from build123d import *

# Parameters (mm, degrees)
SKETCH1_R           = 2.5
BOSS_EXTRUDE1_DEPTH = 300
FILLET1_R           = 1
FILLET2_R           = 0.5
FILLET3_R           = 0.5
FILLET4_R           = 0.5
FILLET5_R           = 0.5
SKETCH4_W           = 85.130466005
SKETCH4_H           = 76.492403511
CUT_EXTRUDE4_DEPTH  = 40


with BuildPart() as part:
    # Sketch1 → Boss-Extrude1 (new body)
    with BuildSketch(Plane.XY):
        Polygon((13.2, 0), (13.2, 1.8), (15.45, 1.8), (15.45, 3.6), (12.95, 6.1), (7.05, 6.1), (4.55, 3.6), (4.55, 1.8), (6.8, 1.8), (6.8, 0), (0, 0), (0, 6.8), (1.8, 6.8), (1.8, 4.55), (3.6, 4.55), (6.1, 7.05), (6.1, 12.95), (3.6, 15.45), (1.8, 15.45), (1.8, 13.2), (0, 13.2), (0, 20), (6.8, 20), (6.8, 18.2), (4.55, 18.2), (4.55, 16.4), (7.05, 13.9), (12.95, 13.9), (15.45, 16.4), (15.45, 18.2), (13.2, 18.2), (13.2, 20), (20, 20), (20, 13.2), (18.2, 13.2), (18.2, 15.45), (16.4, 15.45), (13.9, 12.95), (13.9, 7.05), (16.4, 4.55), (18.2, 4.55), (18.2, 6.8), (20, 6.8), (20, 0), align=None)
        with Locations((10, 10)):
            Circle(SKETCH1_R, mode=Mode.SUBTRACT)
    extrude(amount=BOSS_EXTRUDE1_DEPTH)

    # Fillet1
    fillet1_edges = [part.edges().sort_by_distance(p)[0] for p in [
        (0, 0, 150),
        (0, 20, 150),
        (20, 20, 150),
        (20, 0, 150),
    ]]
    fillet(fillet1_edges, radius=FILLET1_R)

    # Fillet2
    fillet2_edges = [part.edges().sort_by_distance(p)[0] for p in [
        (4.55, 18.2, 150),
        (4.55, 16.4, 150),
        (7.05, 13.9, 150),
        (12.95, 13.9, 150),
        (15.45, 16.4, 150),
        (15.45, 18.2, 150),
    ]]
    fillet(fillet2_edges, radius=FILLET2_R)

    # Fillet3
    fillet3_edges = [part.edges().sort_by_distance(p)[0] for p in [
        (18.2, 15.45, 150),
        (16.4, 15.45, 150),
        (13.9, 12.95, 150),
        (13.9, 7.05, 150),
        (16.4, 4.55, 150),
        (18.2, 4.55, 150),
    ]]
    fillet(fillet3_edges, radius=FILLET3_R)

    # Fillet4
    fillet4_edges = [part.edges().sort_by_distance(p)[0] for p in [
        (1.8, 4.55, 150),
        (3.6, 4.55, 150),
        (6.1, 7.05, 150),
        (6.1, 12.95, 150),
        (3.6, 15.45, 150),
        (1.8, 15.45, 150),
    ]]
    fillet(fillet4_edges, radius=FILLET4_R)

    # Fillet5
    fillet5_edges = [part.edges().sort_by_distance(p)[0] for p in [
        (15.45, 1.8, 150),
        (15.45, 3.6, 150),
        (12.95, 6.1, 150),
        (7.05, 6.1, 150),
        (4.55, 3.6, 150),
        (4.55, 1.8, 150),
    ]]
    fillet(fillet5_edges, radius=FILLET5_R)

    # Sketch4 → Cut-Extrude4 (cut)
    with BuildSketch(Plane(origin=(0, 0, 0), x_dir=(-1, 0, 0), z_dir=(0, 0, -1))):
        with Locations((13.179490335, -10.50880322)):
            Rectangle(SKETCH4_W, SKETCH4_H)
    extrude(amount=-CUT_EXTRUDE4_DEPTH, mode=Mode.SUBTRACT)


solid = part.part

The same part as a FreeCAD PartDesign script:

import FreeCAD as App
import Part
import Sketcher

V = App.Vector


def edges_at(feature, points):
    """Names of the edges that pass closest to the given points."""
    edges = feature.Shape.Edges
    near = lambda p: min(range(len(edges)), key=lambda i: edges[i].distToShape(Part.Vertex(*p))[0])
    return sorted({f"Edge{near(p) + 1}" for p in points})


def add_polygon(sketch, points):
    """Adds a closed chain of lines whose ends are joined by coincident constraints."""
    first, n = sketch.GeometryCount, len(points)
    for a, b in zip(points, points[1:] + points[:1]):
        sketch.addGeometry(Part.LineSegment(App.Vector(*a, 0), App.Vector(*b, 0)), False)
    for i in range(n):
        sketch.addConstraint(Sketcher.Constraint("Coincident", first + i, 2, first + (i + 1) % n, 1))

doc = App.newDocument("Part")
body = doc.addObject("PartDesign::Body", "Body")

sketch1 = body.newObject("Sketcher::SketchObject", "Sketch")
sketch1.AttachmentSupport = (doc.getObject("XY_Plane"), [""])
sketch1.MapMode = "FlatFace"
add_polygon(sketch1, [(13.2, 1.8), (13.2, 0), (20, 0), (20, 6.8), (18.2, 6.8), (18.2, 4.5), (16.4, 4.5), (13.9, 7), (13.9, 12.9), (16.4, 15.4), (18.2, 15.4), (18.2, 13.2), (20, 13.2), (20, 20), (13.2, 20), (13.2, 18.2), (15.4, 18.2), (15.4, 16.4), (12.9, 13.9), (7, 13.9), (4.5, 16.4), (4.5, 18.2), (6.8, 18.2), (6.8, 20), (0, 20), (0, 13.2), (1.8, 13.2), (1.8, 15.4), (3.6, 15.4), (6.1, 12.9), (6.1, 7), (3.6, 4.5), (1.8, 4.5), (1.8, 6.8), (0, 6.8), (0, 0), (6.8, 0), (6.8, 1.8), (4.5, 1.8), (4.5, 3.6), (7, 6.1), (12.9, 6.1), (15.4, 3.6), (15.4, 1.8)])
sketch1.addGeometry(Part.Circle(V(10, 10, 0), V(0, 0, 1), 2.5), False)
sketch1.addConstraint(Sketcher.Constraint("Vertical", 0))
sketch1.addConstraint(Sketcher.Constraint("Horizontal", 1))
sketch1.addConstraint(Sketcher.Constraint("Vertical", 2))
sketch1.addConstraint(Sketcher.Constraint("Horizontal", 3))
sketch1.addConstraint(Sketcher.Constraint("Vertical", 4))
sketch1.addConstraint(Sketcher.Constraint("Horizontal", 5))
sketch1.addConstraint(Sketcher.Constraint("Vertical", 7))
sketch1.addConstraint(Sketcher.Constraint("Horizontal", 9))
sketch1.addConstraint(Sketcher.Constraint("Vertical", 10))
sketch1.addConstraint(Sketcher.Constraint("Horizontal", 11))
sketch1.addConstraint(Sketcher.Constraint("Vertical", 12))
sketch1.addConstraint(Sketcher.Constraint("Horizontal", 13))
sketch1.addConstraint(Sketcher.Constraint("Vertical", 14))
sketch1.addConstraint(Sketcher.Constraint("Horizontal", 15))
sketch1.addConstraint(Sketcher.Constraint("Vertical", 16))
sketch1.addConstraint(Sketcher.Constraint("Horizontal", 18))
sketch1.addConstraint(Sketcher.Constraint("Vertical", 20))
sketch1.addConstraint(Sketcher.Constraint("Horizontal", 21))
sketch1.addConstraint(Sketcher.Constraint("Vertical", 22))
sketch1.addConstraint(Sketcher.Constraint("Horizontal", 23))
sketch1.addConstraint(Sketcher.Constraint("Vertical", 24))
sketch1.addConstraint(Sketcher.Constraint("Horizontal", 25))
sketch1.addConstraint(Sketcher.Constraint("Vertical", 26))
sketch1.addConstraint(Sketcher.Constraint("Horizontal", 27))
sketch1.addConstraint(Sketcher.Constraint("Vertical", 29))
sketch1.addConstraint(Sketcher.Constraint("Horizontal", 31))
sketch1.addConstraint(Sketcher.Constraint("Vertical", 32))
sketch1.addConstraint(Sketcher.Constraint("Horizontal", 33))
sketch1.addConstraint(Sketcher.Constraint("Vertical", 34))
sketch1.addConstraint(Sketcher.Constraint("Horizontal", 35))
sketch1.addConstraint(Sketcher.Constraint("Vertical", 36))
sketch1.addConstraint(Sketcher.Constraint("Horizontal", 37))
sketch1.addConstraint(Sketcher.Constraint("Vertical", 38))
sketch1.addConstraint(Sketcher.Constraint("Horizontal", 40))
sketch1.addConstraint(Sketcher.Constraint("Vertical", 42))
sketch1.addConstraint(Sketcher.Constraint("Horizontal", 43))
sketch1.addConstraint(Sketcher.Constraint("Coincident", 34, 2, -1, 1))
sketch1.addConstraint(Sketcher.Constraint("PointOnObject", 0, 2, -1))
sketch1.addConstraint(Sketcher.Constraint("PointOnObject", 23, 2, -2))
sketch1.addConstraint(Sketcher.Constraint("Perpendicular", 6, 8))
sketch1.addConstraint(Sketcher.Constraint("Parallel", 8, 17))
sketch1.addConstraint(Sketcher.Constraint("Perpendicular", 17, 19))
sketch1.addConstraint(Sketcher.Constraint("Parallel", 19, 28))
sketch1.addConstraint(Sketcher.Constraint("Perpendicular", 28, 30))
sketch1.addConstraint(Sketcher.Constraint("Parallel", 30, 39))
sketch1.addConstraint(Sketcher.Constraint("Perpendicular", 39, 41))
sketch1.addConstraint(Sketcher.Constraint("Horizontal", 16, 2, 19, 2))
sketch1.addConstraint(Sketcher.Constraint("Horizontal", 15, 2, 20, 2))
sketch1.addConstraint(Sketcher.Constraint("Horizontal", 13, 2, 22, 2))
sketch1.addConstraint(Sketcher.Constraint("Horizontal", 11, 2, 24, 2))
sketch1.addConstraint(Sketcher.Constraint("Horizontal", 9, 2, 26, 2))
sketch1.addConstraint(Sketcher.Constraint("Horizontal", 7, 2, 28, 2))
sketch1.addConstraint(Sketcher.Constraint("Horizontal", 6, 2, 29, 2))
sketch1.addConstraint(Sketcher.Constraint("Horizontal", 5, 2, 30, 2))
sketch1.addConstraint(Sketcher.Constraint("Horizontal", 3, 2, 32, 2))
sketch1.addConstraint(Sketcher.Constraint("Horizontal", 38, 2, 41, 2))
sketch1.addConstraint(Sketcher.Constraint("Horizontal", 37, 2, 42, 2))
sketch1.addConstraint(Sketcher.Constraint("Vertical", 5, 2, 8, 2))
sketch1.addConstraint(Sketcher.Constraint("Vertical", 4, 2, 9, 2))
sketch1.addConstraint(Sketcher.Constraint("Vertical", 2, 2, 11, 2))
sketch1.addConstraint(Sketcher.Constraint("Vertical", 0, 2, 13, 2))
sketch1.addConstraint(Sketcher.Constraint("Vertical", 27, 2, 30, 2))
sketch1.addConstraint(Sketcher.Constraint("Vertical", 26, 2, 31, 2))
sketch1.addConstraint(Sketcher.Constraint("Vertical", 22, 2, 35, 2))
sketch1.addConstraint(Sketcher.Constraint("Vertical", 20, 2, 37, 2))
sketch1.addConstraint(Sketcher.Constraint("Vertical", 18, 2, 39, 2))
sketch1.addConstraint(Sketcher.Constraint("Vertical", 17, 2, 40, 2))
sketch1.addConstraint(Sketcher.Constraint("Equal", 3, 5))
sketch1.addConstraint(Sketcher.Constraint("Equal", 15, 21))
sketch1.addConstraint(Sketcher.Constraint("Equal", 13, 23))
sketch1.addConstraint(Sketcher.Constraint("Equal", 11, 25))
sketch1.addConstraint(Sketcher.Constraint("Equal", 25, 27))
sketch1.addConstraint(Sketcher.Constraint("Equal", 33, 0))
sketch1.addConstraint(Sketcher.Constraint("Equal", 35, 2))
sketch1.addConstraint(Sketcher.Constraint("Equal", 43, 4))
sketch1.addConstraint(Sketcher.Constraint("Equal", 40, 7))
sketch1.addConstraint(Sketcher.Constraint("Equal", 4, 10))
sketch1.addConstraint(Sketcher.Constraint("Equal", 2, 12))
sketch1.addConstraint(Sketcher.Constraint("Equal", 0, 14))
sketch1.addConstraint(Sketcher.Constraint("Equal", 14, 16))
sketch1.addConstraint(Sketcher.Constraint("Equal", 36, 38))
sketch1.addConstraint(Sketcher.Constraint("Equal", 8, 17))
sketch1.addConstraint(Sketcher.Constraint("Diameter", 44, 5.0))
sketch1.addConstraint(Sketcher.Constraint("DistanceX", 1, 1, 1, 2, 6.8))
sketch1.addConstraint(Sketcher.Constraint("DistanceX", 3, 2, 3, 1, 1.8))
sketch1.addConstraint(Sketcher.Constraint("DistanceX", 18, 2, 18, 1, 5.9))
sketch1.addConstraint(Sketcher.Constraint("DistanceX", -1, 1, 44, 3, 10.0))
sketch1.addConstraint(Sketcher.Constraint("DistanceY", -1, 1, 44, 3, 10.0))
sketch1.addConstraint(Sketcher.Constraint("DistanceX", -1, 1, 1, 2, 20.0))
sketch1.addConstraint(Sketcher.Constraint("DistanceX", 15, 1, 15, 2, 2.25))
pad1 = body.newObject("PartDesign::Pad", "Pad")
pad1.Profile = sketch1
pad1.Length = 300
doc.recompute()

fillet = body.newObject("PartDesign::Fillet", "Fillet")
fillet.Base = (pad1, edges_at(pad1, [
    (0, 0, 150),
    (0, 20, 150),
    (20, 20, 150),
    (20, 0, 150),
]))
fillet.Radius = 1
doc.recompute()

fillet2 = body.newObject("PartDesign::Fillet", "Fillet001")
fillet2.Base = (fillet, edges_at(fillet, [
    (4.55, 18.2, 150),
    (4.55, 16.4, 150),
    (7.05, 13.9, 150),
    (12.95, 13.9, 150),
    (15.45, 16.4, 150),
    (15.45, 18.2, 150),
]))
fillet2.Radius = 0.5
doc.recompute()

fillet3 = body.newObject("PartDesign::Fillet", "Fillet002")
fillet3.Base = (fillet2, edges_at(fillet2, [
    (18.2, 15.45, 150),
    (16.4, 15.45, 150),
    (13.9, 12.95, 150),
    (13.9, 7.05, 150),
    (16.4, 4.55, 150),
    (18.2, 4.55, 150),
]))
fillet3.Radius = 0.5
doc.recompute()

fillet4 = body.newObject("PartDesign::Fillet", "Fillet003")
fillet4.Base = (fillet3, edges_at(fillet3, [
    (1.8, 4.55, 150),
    (3.6, 4.55, 150),
    (6.1, 7.05, 150),
    (6.1, 12.95, 150),
    (3.6, 15.45, 150),
    (1.8, 15.45, 150),
]))
fillet4.Radius = 0.5
doc.recompute()

fillet5 = body.newObject("PartDesign::Fillet", "Fillet004")
fillet5.Base = (fillet4, edges_at(fillet4, [
    (15.45, 1.8, 150),
    (15.45, 3.6, 150),
    (12.95, 6.1, 150),
    (7.05, 6.1, 150),
    (4.55, 3.6, 150),
    (4.55, 1.8, 150),
]))
fillet5.Radius = 0.5

sketch2 = body.newObject("Sketcher::SketchObject", "Sketch001")
sketch2.AttachmentSupport = (doc.getObject("XY_Plane"), [""])
sketch2.MapMode = "FlatFace"
add_polygon(sketch2, [(29, 28), (29, -49), (-56, -49), (-56, 28)])
sketch2.addConstraint(Sketcher.Constraint("Vertical", 0))
sketch2.addConstraint(Sketcher.Constraint("Horizontal", 1))
sketch2.addConstraint(Sketcher.Constraint("Vertical", 2))
sketch2.addConstraint(Sketcher.Constraint("Horizontal", 3))
sketch2.addConstraint(Sketcher.Constraint("DistanceY", -1, 1, 2, 2, 27.737399))
sketch2.addConstraint(Sketcher.Constraint("DistanceX", 1, 2, 1, 1, 85.130466))
sketch2.addConstraint(Sketcher.Constraint("DistanceY", 0, 2, 0, 1, 76.492404))
sketch2.addConstraint(Sketcher.Constraint("DistanceX", -1, 1, 0, 2, 29.385743))
pocket1 = body.newObject("PartDesign::Pocket", "Pocket")
pocket1.Profile = sketch2
pocket1.Length = 40
pocket1.Reversed = True

doc.recompute()
